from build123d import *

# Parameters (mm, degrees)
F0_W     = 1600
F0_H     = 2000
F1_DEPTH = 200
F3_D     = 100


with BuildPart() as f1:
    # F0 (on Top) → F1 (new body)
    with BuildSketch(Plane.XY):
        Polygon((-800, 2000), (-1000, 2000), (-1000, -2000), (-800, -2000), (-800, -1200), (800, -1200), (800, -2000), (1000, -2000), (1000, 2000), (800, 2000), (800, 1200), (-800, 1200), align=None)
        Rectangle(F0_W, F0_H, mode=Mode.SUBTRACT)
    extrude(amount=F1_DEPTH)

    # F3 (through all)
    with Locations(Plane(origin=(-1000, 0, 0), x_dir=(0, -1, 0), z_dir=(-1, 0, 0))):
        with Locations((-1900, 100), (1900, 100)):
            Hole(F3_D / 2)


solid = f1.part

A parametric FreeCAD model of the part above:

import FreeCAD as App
import Part
import Sketcher

V = App.Vector
Q = App.Units.Quantity

doc = App.newDocument("Part")
params = doc.addObject("Spreadsheet::Sheet", "Params")
for row, (alias, value) in enumerate([
    ("sketch1_width", "200 mm"),
    ("sketch1_width2", "1600 mm"),
    ("sketch1_height", "4000 mm"),
    ("sketch1_height2", "800 mm"),
    ("sketch1_height3", "2000 mm"),
    ("pad1_length", "200 mm"),
    ("sketch2_diameter", "100 mm"),
    ("hole_diameter", "100 mm"),
], start=1):
    params.set(f"A{row}", alias)
    params.set(f"B{row}", "=" + value)
    params.setAlias(f"B{row}", alias)

body = doc.addObject("PartDesign::Body", "Body")

# Sketch on XY plane
sketch1 = doc.addObject("Sketcher::SketchObject", "Sketch")
body.addObject(sketch1)
sketch1.AttachmentSupport = (doc.XY_Plane, [""])
sketch1.MapMode = "FlatFace"
sketch1.addGeometry([
    Part.LineSegment(V(-800, 2000, 0), V(-1000, 2000, 0)),  # 0
    Part.LineSegment(V(-1000, 2000, 0), V(-1000, -2000, 0)),  # 1
    Part.LineSegment(V(-1000, -2000, 0), V(-800, -2000, 0)),  # 2
    Part.LineSegment(V(-800, -2000, 0), V(-800, -1200, 0)),  # 3
    Part.LineSegment(V(-800, -1200, 0), V(800, -1200, 0)),  # 4
    Part.LineSegment(V(800, -1200, 0), V(800, -2000, 0)),  # 5
    Part.LineSegment(V(800, -2000, 0), V(1000, -2000, 0)),  # 6
    Part.LineSegment(V(1000, -2000, 0), V(1000, 2000, 0)),  # 7
    Part.LineSegment(V(1000, 2000, 0), V(800, 2000, 0)),  # 8
    Part.LineSegment(V(800, 2000, 0), V(800, 1200, 0)),  # 9
    Part.LineSegment(V(800, 1200, 0), V(-800, 1200, 0)),  # 10
    Part.LineSegment(V(-800, 1200, 0), V(-800, 2000, 0)),  # 11
    Part.LineSegment(V(800, -1000, 0), V(-800, -1000, 0)),  # 12
    Part.LineSegment(V(-800, -1000, 0), V(-800, 1000, 0)),  # 13
    Part.LineSegment(V(-800, 1000, 0), V(800, 1000, 0)),  # 14
    Part.LineSegment(V(800, 1000, 0), V(800, -1000, 0)),  # 15
], False)
sketch1.addConstraint([
    Sketcher.Constraint("Coincident", 0, 2, 1, 1),
    Sketcher.Constraint("Coincident", 1, 2, 2, 1),
    Sketcher.Constraint("Coincident", 2, 2, 3, 1),
    Sketcher.Constraint("Coincident", 3, 2, 4, 1),
    Sketcher.Constraint("Coincident", 4, 2, 5, 1),
    Sketcher.Constraint("Coincident", 5, 2, 6, 1),
    Sketcher.Constraint("Coincident", 6, 2, 7, 1),
    Sketcher.Constraint("Coincident", 7, 2, 8, 1),
    Sketcher.Constraint("Coincident", 8, 2, 9, 1),
    Sketcher.Constraint("Coincident", 9, 2, 10, 1),
    Sketcher.Constraint("Coincident", 10, 2, 11, 1),
    Sketcher.Constraint("Coincident", 11, 2, 0, 1),
    Sketcher.Constraint("Coincident", 12, 2, 13, 1),
    Sketcher.Constraint("Coincident", 13, 2, 14, 1),
    Sketcher.Constraint("Coincident", 14, 2, 15, 1),
    Sketcher.Constraint("Coincident", 15, 2, 12, 1),
    Sketcher.Constraint("Horizontal", 0),
    Sketcher.Constraint("Vertical", 1),
    Sketcher.Constraint("Horizontal", 2),
    Sketcher.Constraint("Vertical", 3),
    Sketcher.Constraint("Horizontal", 4),
    Sketcher.Constraint("Vertical", 5),
    Sketcher.Constraint("Horizontal", 6),
    Sketcher.Constraint("Vertical", 7),
    Sketcher.Constraint("Horizontal", 8),
    Sketcher.Constraint("Vertical", 9),
    Sketcher.Constraint("Horizontal", 10),
    Sketcher.Constraint("Vertical", 11),
    Sketcher.Constraint("Horizontal", 12),
    Sketcher.Constraint("Vertical", 13),
    Sketcher.Constraint("Horizontal", 14),
    Sketcher.Constraint("Vertical", 15),
    Sketcher.Constraint("Symmetric", 0, 2, 6, 2, -1, 1),
    Sketcher.Constraint("Symmetric", 2, 2, 8, 2, -1, 1),
    Sketcher.Constraint("Symmetric", 4, 2, 10, 2, -1, 1),
    Sketcher.Constraint("Symmetric", 12, 2, 14, 2, -1, 1),
    Sketcher.Constraint("Symmetric", 2, 2, 5, 2, -2),
    Sketcher.Constraint("Vertical", 11, 2, 12, 2),
    Sketcher.Constraint("DistanceX", 0, 2, 0, 1, Q("200 mm")),
    Sketcher.Constraint("DistanceX", 4, 1, 4, 2, Q("1600 mm")),
    Sketcher.Constraint("DistanceY", 1, 2, 1, 1, Q("4000 mm")),
    Sketcher.Constraint("DistanceY", 3, 1, 3, 2, Q("800 mm")),
    Sketcher.Constraint("DistanceY", 13, 1, 13, 2, Q("2000 mm")),
])
sketch1.setExpression("Constraints[38]", "Params.sketch1_width")
sketch1.setExpression("Constraints[39]", "Params.sketch1_width2")
sketch1.setExpression("Constraints[40]", "Params.sketch1_height")
sketch1.setExpression("Constraints[41]", "Params.sketch1_height2")
sketch1.setExpression("Constraints[42]", "Params.sketch1_height3")
pad1 = doc.addObject("PartDesign::Pad", "Pad")
body.addObject(pad1)
pad1.Profile = sketch1
pad1.setExpression("Length", "Params.pad1_length")

# Sketch on YZ plane
sketch2 = doc.addObject("Sketcher::SketchObject", "Sketch001")
body.addObject(sketch2)
sketch2.AttachmentSupport = (doc.YZ_Plane, [""])
sketch2.MapMode = "FlatFace"
sketch2.AttachmentOffset = App.Placement(V(0, 0, -1000), App.Rotation())
sketch2.addGeometry([
    Part.Circle(V(1900, 100, 0), V(0, 0, 1), 50),
    Part.Circle(V(-1900, 100, 0), V(0, 0, 1), 50),
], False)
sketch2.addConstraint([
    Sketcher.Constraint("Equal", 0, 1),
    Sketcher.Constraint("Symmetric", 0, 3, 1, 3, -2),
    Sketcher.Constraint("Diameter", 0, Q("100 mm")),
    Sketcher.Constraint("DistanceX", -1, 1, 0, 3, Q("1900 mm")),
    Sketcher.Constraint("DistanceY", -1, 1, 0, 3, Q("100 mm")),
])
sketch2.setExpression("Constraints[2]", "Params.sketch2_diameter")
doc.recompute()
hole = doc.addObject("PartDesign::Hole", "Hole")
body.addObject(hole)
hole.Profile = sketch2
hole.ThreadType = "None"
hole.setExpression("Diameter", "Params.hole_diameter")
hole.DepthType = "ThroughAll"
hole.Reversed = True

doc.recompute()
